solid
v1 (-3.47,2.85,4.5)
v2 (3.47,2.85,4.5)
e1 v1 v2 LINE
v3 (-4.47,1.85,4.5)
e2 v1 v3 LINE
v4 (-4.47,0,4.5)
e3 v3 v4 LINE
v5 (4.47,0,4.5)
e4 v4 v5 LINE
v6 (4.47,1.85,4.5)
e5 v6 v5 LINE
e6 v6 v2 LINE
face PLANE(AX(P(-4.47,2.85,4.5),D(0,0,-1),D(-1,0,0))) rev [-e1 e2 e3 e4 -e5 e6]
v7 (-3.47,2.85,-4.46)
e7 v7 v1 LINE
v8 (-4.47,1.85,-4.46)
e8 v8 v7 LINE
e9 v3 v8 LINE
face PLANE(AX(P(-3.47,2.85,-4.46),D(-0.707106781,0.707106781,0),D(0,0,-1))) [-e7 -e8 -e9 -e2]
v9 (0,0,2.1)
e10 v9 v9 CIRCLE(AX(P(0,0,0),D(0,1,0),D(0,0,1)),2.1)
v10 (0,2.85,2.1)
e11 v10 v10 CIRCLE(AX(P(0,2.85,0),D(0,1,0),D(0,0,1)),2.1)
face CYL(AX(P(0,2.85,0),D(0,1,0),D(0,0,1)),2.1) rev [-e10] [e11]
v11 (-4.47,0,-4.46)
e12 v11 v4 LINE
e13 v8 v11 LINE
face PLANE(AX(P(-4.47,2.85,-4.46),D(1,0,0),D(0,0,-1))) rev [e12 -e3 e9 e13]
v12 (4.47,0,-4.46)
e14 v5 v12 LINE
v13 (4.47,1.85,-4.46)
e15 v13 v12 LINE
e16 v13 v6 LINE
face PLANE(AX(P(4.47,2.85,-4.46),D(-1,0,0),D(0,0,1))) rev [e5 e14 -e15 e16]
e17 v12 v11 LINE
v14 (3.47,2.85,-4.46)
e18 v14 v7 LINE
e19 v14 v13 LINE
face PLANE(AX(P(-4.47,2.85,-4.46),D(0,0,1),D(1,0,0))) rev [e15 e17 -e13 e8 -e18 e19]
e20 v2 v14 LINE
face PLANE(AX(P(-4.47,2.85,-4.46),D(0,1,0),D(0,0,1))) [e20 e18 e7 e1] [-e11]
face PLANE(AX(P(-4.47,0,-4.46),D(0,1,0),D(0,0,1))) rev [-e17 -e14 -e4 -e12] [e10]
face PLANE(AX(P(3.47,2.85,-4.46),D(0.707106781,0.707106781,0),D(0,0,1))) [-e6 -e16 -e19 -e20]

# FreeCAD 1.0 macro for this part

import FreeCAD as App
import Part
import Sketcher

V = App.Vector


def edges_at(feature, points):
    """Names of the edges that pass closest to the given points."""
    edges = feature.Shape.Edges
    near = lambda p: min(range(len(edges)), key=lambda i: edges[i].distToShape(Part.Vertex(*p))[0])
    return sorted({f"Edge{near(p) + 1}" for p in points})


def add_polygon(sketch, points):
    """Adds a closed chain of lines whose ends are joined by coincident constraints."""
    first, n = sketch.GeometryCount, len(points)
    for a, b in zip(points, points[1:] + points[:1]):
        sketch.addGeometry(Part.LineSegment(App.Vector(*a, 0), App.Vector(*b, 0)), False)
    for i in range(n):
        sketch.addConstraint(Sketcher.Constraint("Coincident", first + i, 2, first + (i + 1) % n, 1))

doc = App.newDocument("Part")
params = doc.addObject("Spreadsheet::Sheet", "Params")
for row, (alias, value) in enumerate([
    ("sketch1_width", "8.94 mm"),
    ("sketch1_height", "8.96 mm"),
    ("pad1_length", "2.85 mm"),
    ("sketch2_diameter", "4.2 mm"),
    ("hole_diameter", "4.2 mm"),
    ("hole_depth", "12.4 mm"),
    ("chamfer_size", "1 mm"),
], start=1):
    params.set(f"A{row}", alias)
    params.set(f"B{row}", "=" + value)
    params.setAlias(f"B{row}", alias)

body = doc.addObject("PartDesign::Body", "Body")

# Sketch on XZ plane
sketch1 = doc.addObject("Sketcher::SketchObject", "Sketch")
body.addObject(sketch1)
sketch1.AttachmentSupport = (doc.XZ_Plane, [""])
sketch1.MapMode = "FlatFace"
add_polygon(sketch1, [(-4.47, -4.46), (-4.47, 4.5), (4.47, 4.5), (4.47, -4.46)])  # lines 0-3
sketch1.addConstraint(Sketcher.Constraint("Vertical", 0))
sketch1.addConstraint(Sketcher.Constraint("Horizontal", 1))
sketch1.addConstraint(Sketcher.Constraint("Vertical", 2))
sketch1.addConstraint(Sketcher.Constraint("Horizontal", 3))
sketch1.addConstraint(Sketcher.Constraint("DistanceX", 1, 1, 1, 2, 8.94))
sketch1.addConstraint(Sketcher.Constraint("DistanceY", 0, 1, 0, 2, 8.96))
sketch1.addConstraint(Sketcher.Constraint("DistanceY", -1, 1, 0, 2, 4.5))
sketch1.addConstraint(Sketcher.Constraint("DistanceX", 0, 2, -1, 1, 4.47))
sketch1.setExpression("Constraints[8]", "Params.sketch1_width")
sketch1.setExpression("Constraints[9]", "Params.sketch1_height")
pad1 = doc.addObject("PartDesign::Pad", "Pad")
body.addObject(pad1)
pad1.Profile = sketch1
pad1.setExpression("Length", "Params.pad1_length")
pad1.Reversed = True

# Sketch on XZ plane
sketch2 = doc.addObject("Sketcher::SketchObject", "Sketch001")
body.addObject(sketch2)
sketch2.AttachmentSupport = (doc.XZ_Plane, [""])
sketch2.MapMode = "FlatFace"
sketch2.AttachmentOffset = App.Placement(V(0, 0, -2.85), App.Rotation())
sketch2.addGeometry(Part.Circle(V(0, 0, 0), V(0, 0, 1), 2.1), False)
sketch2.addConstraint(Sketcher.Constraint("Coincident", 0, 3, -1, 1))
sketch2.addConstraint(Sketcher.Constraint("Diameter", 0, 4.2))
sketch2.setExpression("Constraints[1]", "Params.sketch2_diameter")
doc.recompute()
hole = doc.addObject("PartDesign::Hole", "Hole")
body.addObject(hole)
hole.Profile = sketch2
hole.ThreadType = "None"
hole.setExpression("Diameter", "Params.hole_diameter")
hole.DepthType = "Dimension"
hole.setExpression("Depth", "Params.hole_depth")
hole.DrillPoint = "Angled"
hole.DrillPointAngle = 118
hole.Reversed = True
doc.recompute()

chamfer = doc.addObject("PartDesign::Chamfer", "Chamfer")
body.addObject(chamfer)
chamfer.Base = (hole, edges_at(hole, [(4.47, 2.85, 0.02), (-4.47, 2.85, 0.02)]))
chamfer.setExpression("Size", "Params.chamfer_size")

doc.recompute()
